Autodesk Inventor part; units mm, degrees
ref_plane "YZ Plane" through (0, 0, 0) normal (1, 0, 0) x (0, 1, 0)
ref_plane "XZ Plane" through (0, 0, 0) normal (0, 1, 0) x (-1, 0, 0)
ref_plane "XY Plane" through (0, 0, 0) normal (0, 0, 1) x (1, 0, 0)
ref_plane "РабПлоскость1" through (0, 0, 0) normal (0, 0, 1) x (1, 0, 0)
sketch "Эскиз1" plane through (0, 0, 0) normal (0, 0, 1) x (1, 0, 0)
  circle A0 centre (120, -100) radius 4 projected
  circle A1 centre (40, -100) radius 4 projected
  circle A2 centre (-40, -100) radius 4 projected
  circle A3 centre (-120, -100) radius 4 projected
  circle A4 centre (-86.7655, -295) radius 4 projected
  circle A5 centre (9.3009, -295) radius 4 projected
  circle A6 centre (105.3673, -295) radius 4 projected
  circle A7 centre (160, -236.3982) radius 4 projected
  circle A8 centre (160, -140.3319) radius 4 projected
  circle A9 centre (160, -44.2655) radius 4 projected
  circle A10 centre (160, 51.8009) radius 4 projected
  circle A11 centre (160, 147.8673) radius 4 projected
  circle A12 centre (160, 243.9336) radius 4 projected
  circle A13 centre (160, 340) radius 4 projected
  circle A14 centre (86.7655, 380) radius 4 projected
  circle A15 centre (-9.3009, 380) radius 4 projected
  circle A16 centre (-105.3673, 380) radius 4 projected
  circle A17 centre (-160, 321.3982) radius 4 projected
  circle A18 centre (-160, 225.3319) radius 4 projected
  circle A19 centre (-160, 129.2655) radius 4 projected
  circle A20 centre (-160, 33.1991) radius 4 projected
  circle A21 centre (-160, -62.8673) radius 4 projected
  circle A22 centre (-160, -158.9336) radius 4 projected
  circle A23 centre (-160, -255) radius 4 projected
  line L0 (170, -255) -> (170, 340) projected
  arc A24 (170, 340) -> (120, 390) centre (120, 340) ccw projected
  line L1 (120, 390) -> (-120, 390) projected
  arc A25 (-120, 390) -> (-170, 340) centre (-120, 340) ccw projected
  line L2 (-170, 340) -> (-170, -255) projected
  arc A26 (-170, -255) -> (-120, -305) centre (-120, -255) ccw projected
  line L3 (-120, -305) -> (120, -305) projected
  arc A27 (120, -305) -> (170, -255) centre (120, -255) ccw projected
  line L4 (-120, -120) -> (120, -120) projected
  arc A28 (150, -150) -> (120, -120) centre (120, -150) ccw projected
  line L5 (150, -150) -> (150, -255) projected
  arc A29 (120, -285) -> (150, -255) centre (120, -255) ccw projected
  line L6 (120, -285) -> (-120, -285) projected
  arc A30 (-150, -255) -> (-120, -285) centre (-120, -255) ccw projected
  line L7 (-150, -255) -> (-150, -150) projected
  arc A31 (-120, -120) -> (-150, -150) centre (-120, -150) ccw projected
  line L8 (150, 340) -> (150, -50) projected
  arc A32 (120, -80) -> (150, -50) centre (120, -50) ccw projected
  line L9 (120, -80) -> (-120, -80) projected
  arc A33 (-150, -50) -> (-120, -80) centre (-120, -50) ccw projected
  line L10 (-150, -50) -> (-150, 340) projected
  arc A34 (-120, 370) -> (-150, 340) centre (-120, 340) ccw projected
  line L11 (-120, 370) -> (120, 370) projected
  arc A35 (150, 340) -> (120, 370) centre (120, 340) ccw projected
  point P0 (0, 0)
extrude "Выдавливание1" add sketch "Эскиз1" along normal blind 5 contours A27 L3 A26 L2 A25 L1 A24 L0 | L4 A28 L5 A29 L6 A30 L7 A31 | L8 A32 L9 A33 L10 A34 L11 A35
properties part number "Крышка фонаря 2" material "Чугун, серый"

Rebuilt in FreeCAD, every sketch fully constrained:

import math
import FreeCAD as App
import Part
import Sketcher
Q = App.Units.Quantity

doc = App.newDocument("Part")
body = doc.addObject("PartDesign::Body", "Body")

# Sketch on XY plane
sketch1 = body.newObject("Sketcher::SketchObject", "Sketch")
sketch1.AttachmentSupport = (doc.getObject("XY_Plane"), [""])
sketch1.MapMode = "FlatFace"
sketch1.addGeometry([
    Part.ArcOfCircle(Part.Circle(App.Vector(120, -255, 0), App.Vector(0, 0, 1), 50), math.radians(-90), math.radians(0)),  # 0
    Part.LineSegment(App.Vector(170, -255, 0), App.Vector(170, 340, 0)),  # 1
    Part.ArcOfCircle(Part.Circle(App.Vector(120, 340, 0), App.Vector(0, 0, 1), 50), math.radians(0), math.radians(90)),  # 2
    Part.LineSegment(App.Vector(120, 390, 0), App.Vector(-120, 390, 0)),  # 3
    Part.ArcOfCircle(Part.Circle(App.Vector(-120, 340, 0), App.Vector(0, 0, 1), 50), math.radians(90), math.radians(180)),  # 4
    Part.LineSegment(App.Vector(-170, 340, 0), App.Vector(-170, -255, 0)),  # 5
    Part.ArcOfCircle(Part.Circle(App.Vector(-120, -255, 0), App.Vector(0, 0, 1), 50), math.radians(180), math.radians(270)),  # 6
    Part.LineSegment(App.Vector(-120, -305, 0), App.Vector(120, -305, 0)),  # 7
    Part.Circle(App.Vector(-160, -255, 0), App.Vector(0, 0, 1), 4),  # 8
    Part.Circle(App.Vector(-86.8, -295, 0), App.Vector(0, 0, 1), 4),  # 9
    Part.Circle(App.Vector(-160, -158.9, 0), App.Vector(0, 0, 1), 4),  # 10
    Part.Circle(App.Vector(-160, -62.9, 0), App.Vector(0, 0, 1), 4),  # 11
    Part.Circle(App.Vector(-120, -100, 0), App.Vector(0, 0, 1), 4),  # 12
    Part.Circle(App.Vector(-160, 33.2, 0), App.Vector(0, 0, 1), 4),  # 13
    Part.Circle(App.Vector(-40, -100, 0), App.Vector(0, 0, 1), 4),  # 14
    Part.Circle(App.Vector(9.3, -295, 0), App.Vector(0, 0, 1), 4),  # 15
    Part.Circle(App.Vector(105.4, -295, 0), App.Vector(0, 0, 1), 4),  # 16
    Part.Circle(App.Vector(160, -236.4, 0), App.Vector(0, 0, 1), 4),  # 17
    Part.Circle(App.Vector(160, -140.3, 0), App.Vector(0, 0, 1), 4),  # 18
    Part.Circle(App.Vector(40, -100, 0), App.Vector(0, 0, 1), 4),  # 19
    Part.Circle(App.Vector(120, -100, 0), App.Vector(0, 0, 1), 4),  # 20
    Part.Circle(App.Vector(160, -44.3, 0), App.Vector(0, 0, 1), 4),  # 21
    Part.Circle(App.Vector(-160, 129.3, 0), App.Vector(0, 0, 1), 4),  # 22
    Part.Circle(App.Vector(-160, 225.3, 0), App.Vector(0, 0, 1), 4),  # 23
    Part.Circle(App.Vector(-160, 321.4, 0), App.Vector(0, 0, 1), 4),  # 24
    Part.Circle(App.Vector(-105.4, 380, 0), App.Vector(0, 0, 1), 4),  # 25
    Part.Circle(App.Vector(-9.3, 380, 0), App.Vector(0, 0, 1), 4),  # 26
    Part.Circle(App.Vector(160, 51.8, 0), App.Vector(0, 0, 1), 4),  # 27
    Part.Circle(App.Vector(160, 147.9, 0), App.Vector(0, 0, 1), 4),  # 28
    Part.Circle(App.Vector(160, 243.9, 0), App.Vector(0, 0, 1), 4),  # 29
    Part.Circle(App.Vector(86.8, 380, 0), App.Vector(0, 0, 1), 4),  # 30
    Part.Circle(App.Vector(160, 340, 0), App.Vector(0, 0, 1), 4),  # 31
], False)
sketch1.addConstraint([
    Sketcher.Constraint("Tangent", 0, 2, 1, 1),
    Sketcher.Constraint("Tangent", 1, 2, 2, 1),
    Sketcher.Constraint("Tangent", 2, 2, 3, 1),
    Sketcher.Constraint("Tangent", 3, 2, 4, 1),
    Sketcher.Constraint("Tangent", 4, 2, 5, 1),
    Sketcher.Constraint("Tangent", 5, 2, 6, 1),
    Sketcher.Constraint("Tangent", 6, 2, 7, 1),
    Sketcher.Constraint("Tangent", 7, 2, 0, 1),
    Sketcher.Constraint("Vertical", 1),
    Sketcher.Constraint("Horizontal", 3),
    Sketcher.Constraint("Vertical", 5),
    Sketcher.Constraint("Horizontal", 7),
    Sketcher.Constraint("Equal", 0, 2),
    Sketcher.Constraint("Equal", 2, 4),
    Sketcher.Constraint("Equal", 4, 6),
    Sketcher.Constraint("Equal", 8, 9),
    Sketcher.Constraint("Equal", 9, 10),
    Sketcher.Constraint("Equal", 10, 11),
    Sketcher.Constraint("Equal", 11, 12),
    Sketcher.Constraint("Equal", 12, 13),
    Sketcher.Constraint("Equal", 13, 14),
    Sketcher.Constraint("Equal", 14, 15),
    Sketcher.Constraint("Equal", 15, 16),
    Sketcher.Constraint("Equal", 16, 17),
    Sketcher.Constraint("Equal", 17, 18),
    Sketcher.Constraint("Equal", 18, 19),
    Sketcher.Constraint("Equal", 19, 20),
    Sketcher.Constraint("Equal", 20, 21),
    Sketcher.Constraint("Equal", 21, 22),
    Sketcher.Constraint("Equal", 22, 23),
    Sketcher.Constraint("Equal", 23, 24),
    Sketcher.Constraint("Equal", 24, 25),
    Sketcher.Constraint("Equal", 25, 26),
    Sketcher.Constraint("Equal", 26, 27),
    Sketcher.Constraint("Equal", 27, 28),
    Sketcher.Constraint("Equal", 28, 29),
    Sketcher.Constraint("Equal", 29, 30),
    Sketcher.Constraint("Equal", 30, 31),
    Sketcher.Constraint("Symmetric", 14, 3, 19, 3, -2),
    Sketcher.Constraint("Symmetric", 12, 3, 20, 3, -2),
    Sketcher.Constraint("Horizontal", 6, 3, 8, 3),
    Sketcher.Constraint("Horizontal", 12, 3, 14, 3),
    Sketcher.Constraint("Horizontal", 9, 3, 15, 3),
    Sketcher.Constraint("Horizontal", 15, 3, 16, 3),
    Sketcher.Constraint("Horizontal", 25, 3, 26, 3),
    Sketcher.Constraint("Horizontal", 26, 3, 30, 3),
    Sketcher.Constraint("Horizontal", 4, 3, 31, 3),
    Sketcher.Constraint("Vertical", 8, 3, 10, 3),
    Sketcher.Constraint("Vertical", 10, 3, 11, 3),
    Sketcher.Constraint("Vertical", 6, 3, 12, 3),
    Sketcher.Constraint("Vertical", 11, 3, 13, 3),
    Sketcher.Constraint("Vertical", 17, 3, 18, 3),
    Sketcher.Constraint("Vertical", 2, 3, 20, 3),
    Sketcher.Constraint("Vertical", 18, 3, 21, 3),
    Sketcher.Constraint("Vertical", 13, 3, 22, 3),
    Sketcher.Constraint("Vertical", 22, 3, 23, 3),
    Sketcher.Constraint("Vertical", 23, 3, 24, 3),
    Sketcher.Constraint("Vertical", 21, 3, 27, 3),
    Sketcher.Constraint("Vertical", 27, 3, 28, 3),
    Sketcher.Constraint("Vertical", 28, 3, 29, 3),
    Sketcher.Constraint("Vertical", 29, 3, 31, 3),
    Sketcher.Constraint("Diameter", 8, Q("8 mm")),
    Sketcher.Constraint("Radius", 0, Q("50 mm")),
    Sketcher.Constraint("DistanceX", 3, 2, 3, 1, Q("240 mm")),
    Sketcher.Constraint("DistanceY", 1, 1, 1, 2, Q("595 mm")),
    Sketcher.Constraint("DistanceY", 0, 3, -1, 1, Q("255 mm")),
    Sketcher.Constraint("DistanceX", 8, 3, -1, 1, Q("160 mm")),
    Sketcher.Constraint("DistanceY", 9, 3, -1, 1, Q("295 mm")),
    Sketcher.Constraint("DistanceY", 12, 3, -1, 1, Q("100 mm")),
    Sketcher.Constraint("DistanceX", 14, 3, -1, 1, Q("40 mm")),
    Sketcher.Constraint("DistanceX", -1, 1, 17, 3, Q("160 mm")),
    Sketcher.Constraint("DistanceY", -1, 1, 25, 3, Q("380 mm")),
    Sketcher.Constraint("DistanceY", -1, 1, 13, 3, Q("33.199 mm")),
    Sketcher.Constraint("DistanceX", -1, 1, 15, 3, Q("9.301 mm")),
    Sketcher.Constraint("DistanceY", 18, 3, -1, 1, Q("140.332 mm")),
    Sketcher.Constraint("DistanceY", -1, 1, 23, 3, Q("225.332 mm")),
    Sketcher.Constraint("DistanceX", 26, 3, -1, 1, Q("9.301 mm")),
    Sketcher.Constraint("DistanceY", -1, 1, 27, 3, Q("51.801 mm")),
    Sketcher.Constraint("DistanceY", 13, 3, 24, 3, Q("288.199 mm")),
    Sketcher.Constraint("DistanceY", 21, 3, 29, 3, Q("288.199 mm")),
    Sketcher.Constraint("DistanceX", 9, 3, -1, 1, Q("86.7655 mm")),
    Sketcher.Constraint("DistanceY", 10, 3, -1, 1, Q("158.9336 mm")),
    Sketcher.Constraint("DistanceY", 11, 3, -1, 1, Q("62.8673 mm")),
    Sketcher.Constraint("DistanceX", -1, 1, 16, 3, Q("105.3673 mm")),
    Sketcher.Constraint("DistanceY", 17, 3, -1, 1, Q("236.3982 mm")),
    Sketcher.Constraint("DistanceY", 21, 3, -1, 1, Q("44.2655 mm")),
    Sketcher.Constraint("DistanceY", -1, 1, 22, 3, Q("129.2655 mm")),
    Sketcher.Constraint("DistanceX", 25, 3, -1, 1, Q("105.3673 mm")),
    Sketcher.Constraint("DistanceY", -1, 1, 28, 3, Q("147.8673 mm")),
    Sketcher.Constraint("DistanceX", -1, 1, 30, 3, Q("86.7655 mm")),
])
pad1 = body.newObject("PartDesign::Pad", "Pad")
pad1.Profile = sketch1
pad1.Length = 5

doc.recompute()
